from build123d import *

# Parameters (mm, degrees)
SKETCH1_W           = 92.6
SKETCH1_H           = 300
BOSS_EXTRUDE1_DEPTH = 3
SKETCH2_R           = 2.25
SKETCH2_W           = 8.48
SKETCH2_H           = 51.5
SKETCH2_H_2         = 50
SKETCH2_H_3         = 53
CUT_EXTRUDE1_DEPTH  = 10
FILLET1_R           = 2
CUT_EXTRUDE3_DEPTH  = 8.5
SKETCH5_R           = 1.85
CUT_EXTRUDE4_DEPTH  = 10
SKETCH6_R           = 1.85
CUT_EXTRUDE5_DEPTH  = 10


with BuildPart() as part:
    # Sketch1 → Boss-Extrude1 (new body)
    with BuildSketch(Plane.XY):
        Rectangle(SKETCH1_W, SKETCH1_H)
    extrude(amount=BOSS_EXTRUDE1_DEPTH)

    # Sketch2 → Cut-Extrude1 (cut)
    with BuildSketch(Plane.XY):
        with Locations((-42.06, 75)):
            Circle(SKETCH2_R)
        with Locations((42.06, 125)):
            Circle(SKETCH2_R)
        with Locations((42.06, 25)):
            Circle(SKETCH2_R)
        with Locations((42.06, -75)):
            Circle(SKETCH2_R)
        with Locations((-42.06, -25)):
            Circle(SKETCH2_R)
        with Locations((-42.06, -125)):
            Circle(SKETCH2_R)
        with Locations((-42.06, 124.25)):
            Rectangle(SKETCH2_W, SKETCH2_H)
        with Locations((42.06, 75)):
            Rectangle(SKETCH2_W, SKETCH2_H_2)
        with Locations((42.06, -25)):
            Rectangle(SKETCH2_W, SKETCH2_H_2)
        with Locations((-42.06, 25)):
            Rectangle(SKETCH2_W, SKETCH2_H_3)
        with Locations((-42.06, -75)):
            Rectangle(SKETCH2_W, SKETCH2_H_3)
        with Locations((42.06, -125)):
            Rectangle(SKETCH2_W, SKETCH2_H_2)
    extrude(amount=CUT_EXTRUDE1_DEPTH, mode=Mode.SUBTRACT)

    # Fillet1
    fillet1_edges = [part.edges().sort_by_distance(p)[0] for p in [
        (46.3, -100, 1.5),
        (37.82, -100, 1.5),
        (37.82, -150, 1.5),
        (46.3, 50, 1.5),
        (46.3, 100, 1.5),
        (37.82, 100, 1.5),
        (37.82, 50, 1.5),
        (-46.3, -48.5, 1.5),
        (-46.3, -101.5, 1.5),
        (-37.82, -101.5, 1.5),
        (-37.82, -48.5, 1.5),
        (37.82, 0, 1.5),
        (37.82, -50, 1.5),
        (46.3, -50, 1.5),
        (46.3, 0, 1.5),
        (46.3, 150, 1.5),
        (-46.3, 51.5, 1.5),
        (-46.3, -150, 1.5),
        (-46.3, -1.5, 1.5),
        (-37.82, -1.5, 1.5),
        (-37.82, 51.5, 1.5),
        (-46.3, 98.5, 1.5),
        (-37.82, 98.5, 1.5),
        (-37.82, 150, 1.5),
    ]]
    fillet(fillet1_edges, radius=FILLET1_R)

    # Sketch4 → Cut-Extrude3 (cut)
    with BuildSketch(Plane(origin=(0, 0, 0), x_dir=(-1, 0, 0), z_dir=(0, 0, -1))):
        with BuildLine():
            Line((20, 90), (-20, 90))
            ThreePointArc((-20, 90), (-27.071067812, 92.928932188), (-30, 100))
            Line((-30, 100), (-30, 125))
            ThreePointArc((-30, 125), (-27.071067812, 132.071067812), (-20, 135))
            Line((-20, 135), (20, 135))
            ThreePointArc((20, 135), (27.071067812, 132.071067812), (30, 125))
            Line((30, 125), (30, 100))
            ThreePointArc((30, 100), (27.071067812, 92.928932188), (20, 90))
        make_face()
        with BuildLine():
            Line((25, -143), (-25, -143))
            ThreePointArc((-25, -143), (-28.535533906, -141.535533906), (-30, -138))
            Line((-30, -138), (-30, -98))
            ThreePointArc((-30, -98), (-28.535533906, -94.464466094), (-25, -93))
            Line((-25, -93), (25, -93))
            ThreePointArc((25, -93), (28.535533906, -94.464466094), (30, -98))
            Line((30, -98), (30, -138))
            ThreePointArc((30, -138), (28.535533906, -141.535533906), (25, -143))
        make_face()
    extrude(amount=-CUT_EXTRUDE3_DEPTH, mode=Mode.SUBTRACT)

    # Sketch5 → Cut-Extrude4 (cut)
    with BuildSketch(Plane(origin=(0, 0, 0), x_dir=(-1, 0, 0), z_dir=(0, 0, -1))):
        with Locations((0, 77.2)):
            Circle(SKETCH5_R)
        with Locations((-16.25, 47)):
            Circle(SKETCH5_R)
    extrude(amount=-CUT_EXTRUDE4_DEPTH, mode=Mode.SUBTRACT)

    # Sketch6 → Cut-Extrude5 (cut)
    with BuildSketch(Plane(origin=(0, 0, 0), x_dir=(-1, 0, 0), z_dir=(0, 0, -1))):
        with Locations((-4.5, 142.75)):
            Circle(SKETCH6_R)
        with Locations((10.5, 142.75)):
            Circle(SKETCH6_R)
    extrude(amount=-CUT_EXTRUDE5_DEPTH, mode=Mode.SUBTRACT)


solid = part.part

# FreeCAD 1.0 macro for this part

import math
import FreeCAD as App
import Part
import Sketcher
from FreeCAD import Vector
Q = App.Units.Quantity


def edges_at(feature, points):
    """Names of the edges that pass closest to the given points."""
    edges = feature.Shape.Edges
    near = lambda p: min(range(len(edges)), key=lambda i: edges[i].distToShape(Part.Vertex(*p))[0])
    return sorted({f"Edge{near(p) + 1}" for p in points})

doc = App.newDocument("Part")
body = doc.addObject("PartDesign::Body", "Body")

# Sketch on XY plane
sketch1 = doc.addObject("Sketcher::SketchObject", "Sketch")
body.addObject(sketch1)
sketch1.AttachmentSupport = (doc.XY_Plane, [""])
sketch1.MapMode = "FlatFace"
sketch1.addGeometry(Part.LineSegment(Vector(-46, 150, 0), Vector(-46, -150, 0)), False)
sketch1.addGeometry(Part.LineSegment(Vector(-46, -150, 0), Vector(46, -150, 0)), False)
sketch1.addGeometry(Part.LineSegment(Vector(46, -150, 0), Vector(46, 150, 0)), False)
sketch1.addGeometry(Part.LineSegment(Vector(46, 150, 0), Vector(-46, 150, 0)), False)
sketch1.addConstraint(Sketcher.Constraint("Coincident", 0, 2, 1, 1))
sketch1.addConstraint(Sketcher.Constraint("Coincident", 1, 2, 2, 1))
sketch1.addConstraint(Sketcher.Constraint("Coincident", 2, 2, 3, 1))
sketch1.addConstraint(Sketcher.Constraint("Coincident", 3, 2, 0, 1))
sketch1.addConstraint(Sketcher.Constraint("Vertical", 0))
sketch1.addConstraint(Sketcher.Constraint("Horizontal", 1))
sketch1.addConstraint(Sketcher.Constraint("Vertical", 2))
sketch1.addConstraint(Sketcher.Constraint("Horizontal", 3))
sketch1.addConstraint(Sketcher.Constraint("Symmetric", 0, 2, 2, 2, -1, 1))
sketch1.addConstraint(Sketcher.Constraint("DistanceY", 0, 2, 0, 1, Q("300 mm")))
sketch1.addConstraint(Sketcher.Constraint("DistanceX", 1, 1, 1, 2, Q("92.6 mm")))
pad1 = doc.addObject("PartDesign::Pad", "Pad")
body.addObject(pad1)
pad1.Profile = sketch1
pad1.Length = 3

# Sketch on XY plane
sketch2 = doc.addObject("Sketcher::SketchObject", "Sketch001")
body.addObject(sketch2)
sketch2.AttachmentSupport = (doc.XY_Plane, [""])
sketch2.MapMode = "FlatFace"
sketch2.addGeometry(Part.Circle(Vector(-42.1, 75, 0), Vector(0, 0, 1), 2.2), False)
sketch2.addGeometry(Part.Circle(Vector(42.1, 125, 0), Vector(0, 0, 1), 2.2), False)
sketch2.addGeometry(Part.Circle(Vector(42.1, 25, 0), Vector(0, 0, 1), 2.2), False)
sketch2.addGeometry(Part.Circle(Vector(42.1, -75, 0), Vector(0, 0, 1), 2.2), False)
sketch2.addGeometry(Part.Circle(Vector(-42.1, -25, 0), Vector(0, 0, 1), 2.2), False)
sketch2.addGeometry(Part.Circle(Vector(-42.1, -125, 0), Vector(0, 0, 1), 2.2), False)
sketch2.addGeometry(Part.LineSegment(Vector(-46.3, 150, 0), Vector(-46.3, 98.5, 0)), False)
sketch2.addGeometry(Part.LineSegment(Vector(-46.3, 98.5, 0), Vector(-37.8, 98.5, 0)), False)
sketch2.addGeometry(Part.LineSegment(Vector(-37.8, 98.5, 0), Vector(-37.8, 150, 0)), False)
sketch2.addGeometry(Part.LineSegment(Vector(-37.8, 150, 0), Vector(-46.3, 150, 0)), False)
sketch2.addGeometry(Part.LineSegment(Vector(37.8, 100, 0), Vector(37.8, 50, 0)), False)
sketch2.addGeometry(Part.LineSegment(Vector(37.8, 50, 0), Vector(46.3, 50, 0)), False)
sketch2.addGeometry(Part.LineSegment(Vector(46.3, 50, 0), Vector(46.3, 100, 0)), False)
sketch2.addGeometry(Part.LineSegment(Vector(46.3, 100, 0), Vector(37.8, 100, 0)), False)
sketch2.addGeometry(Part.LineSegment(Vector(37.8, 0, 0), Vector(37.8, -50, 0)), False)
sketch2.addGeometry(Part.LineSegment(Vector(37.8, -50, 0), Vector(46.3, -50, 0)), False)
sketch2.addGeometry(Part.LineSegment(Vector(46.3, -50, 0), Vector(46.3, 0, 0)), False)
sketch2.addGeometry(Part.LineSegment(Vector(46.3, 0, 0), Vector(37.8, 0, 0)), False)
sketch2.addGeometry(Part.LineSegment(Vector(-46.3, 51.5, 0), Vector(-46.3, -1.5, 0)), False)
sketch2.addGeometry(Part.LineSegment(Vector(-46.3, -1.5, 0), Vector(-37.8, -1.5, 0)), False)
sketch2.addGeometry(Part.LineSegment(Vector(-37.8, -1.5, 0), Vector(-37.8, 51.5, 0)), False)
sketch2.addGeometry(Part.LineSegment(Vector(-37.8, 51.5, 0), Vector(-46.3, 51.5, 0)), False)
sketch2.addGeometry(Part.LineSegment(Vector(-46.3, -48.5, 0), Vector(-46.3, -101.5, 0)), False)
sketch2.addGeometry(Part.LineSegment(Vector(-46.3, -101.5, 0), Vector(-37.8, -101.5, 0)), False)
sketch2.addGeometry(Part.LineSegment(Vector(-37.8, -101.5, 0), Vector(-37.8, -48.5, 0)), False)
sketch2.addGeometry(Part.LineSegment(Vector(-37.8, -48.5, 0), Vector(-46.3, -48.5, 0)), False)
sketch2.addGeometry(Part.LineSegment(Vector(37.8, -100, 0), Vector(37.8, -150, 0)), False)
sketch2.addGeometry(Part.LineSegment(Vector(37.8, -150, 0), Vector(46.3, -150, 0)), False)
sketch2.addGeometry(Part.LineSegment(Vector(46.3, -150, 0), Vector(46.3, -100, 0)), False)
sketch2.addGeometry(Part.LineSegment(Vector(46.3, -100, 0), Vector(37.8, -100, 0)), False)
sketch2.addConstraint(Sketcher.Constraint("Coincident", 6, 2, 7, 1))
sketch2.addConstraint(Sketcher.Constraint("Coincident", 7, 2, 8, 1))
sketch2.addConstraint(Sketcher.Constraint("Coincident", 8, 2, 9, 1))
sketch2.addConstraint(Sketcher.Constraint("Coincident", 9, 2, 6, 1))
sketch2.addConstraint(Sketcher.Constraint("Coincident", 10, 2, 11, 1))
sketch2.addConstraint(Sketcher.Constraint("Coincident", 11, 2, 12, 1))
sketch2.addConstraint(Sketcher.Constraint("Coincident", 12, 2, 13, 1))
sketch2.addConstraint(Sketcher.Constraint("Coincident", 13, 2, 10, 1))
sketch2.addConstraint(Sketcher.Constraint("Coincident", 14, 2, 15, 1))
sketch2.addConstraint(Sketcher.Constraint("Coincident", 15, 2, 16, 1))
sketch2.addConstraint(Sketcher.Constraint("Coincident", 16, 2, 17, 1))
sketch2.addConstraint(Sketcher.Constraint("Coincident", 17, 2, 14, 1))
sketch2.addConstraint(Sketcher.Constraint("Coincident", 18, 2, 19, 1))
sketch2.addConstraint(Sketcher.Constraint("Coincident", 19, 2, 20, 1))
sketch2.addConstraint(Sketcher.Constraint("Coincident", 20, 2, 21, 1))
sketch2.addConstraint(Sketcher.Constraint("Coincident", 21, 2, 18, 1))
sketch2.addConstraint(Sketcher.Constraint("Coincident", 22, 2, 23, 1))
sketch2.addConstraint(Sketcher.Constraint("Coincident", 23, 2, 24, 1))
sketch2.addConstraint(Sketcher.Constraint("Coincident", 24, 2, 25, 1))
sketch2.addConstraint(Sketcher.Constraint("Coincident", 25, 2, 22, 1))
sketch2.addConstraint(Sketcher.Constraint("Coincident", 26, 2, 27, 1))
sketch2.addConstraint(Sketcher.Constraint("Coincident", 27, 2, 28, 1))
sketch2.addConstraint(Sketcher.Constraint("Coincident", 28, 2, 29, 1))
sketch2.addConstraint(Sketcher.Constraint("Coincident", 29, 2, 26, 1))
sketch2.addConstraint(Sketcher.Constraint("Vertical", 6))
sketch2.addConstraint(Sketcher.Constraint("Horizontal", 7))
sketch2.addConstraint(Sketcher.Constraint("Vertical", 8))
sketch2.addConstraint(Sketcher.Constraint("Horizontal", 9))
sketch2.addConstraint(Sketcher.Constraint("Vertical", 10))
sketch2.addConstraint(Sketcher.Constraint("Horizontal", 11))
sketch2.addConstraint(Sketcher.Constraint("Vertical", 12))
sketch2.addConstraint(Sketcher.Constraint("Horizontal", 13))
sketch2.addConstraint(Sketcher.Constraint("Vertical", 14))
sketch2.addConstraint(Sketcher.Constraint("Horizontal", 15))
sketch2.addConstraint(Sketcher.Constraint("Vertical", 16))
sketch2.addConstraint(Sketcher.Constraint("Horizontal", 17))
sketch2.addConstraint(Sketcher.Constraint("Vertical", 18))
sketch2.addConstraint(Sketcher.Constraint("Horizontal", 19))
sketch2.addConstraint(Sketcher.Constraint("Vertical", 20))
sketch2.addConstraint(Sketcher.Constraint("Horizontal", 21))
sketch2.addConstraint(Sketcher.Constraint("Vertical", 22))
sketch2.addConstraint(Sketcher.Constraint("Horizontal", 23))
sketch2.addConstraint(Sketcher.Constraint("Vertical", 24))
sketch2.addConstraint(Sketcher.Constraint("Horizontal", 25))
sketch2.addConstraint(Sketcher.Constraint("Vertical", 26))
sketch2.addConstraint(Sketcher.Constraint("Horizontal", 27))
sketch2.addConstraint(Sketcher.Constraint("Vertical", 28))
sketch2.addConstraint(Sketcher.Constraint("Horizontal", 29))
sketch2.addConstraint(Sketcher.Constraint("Equal", 0, 1))
sketch2.addConstraint(Sketcher.Constraint("Equal", 1, 2))
sketch2.addConstraint(Sketcher.Constraint("Equal", 2, 3))
sketch2.addConstraint(Sketcher.Constraint("Equal", 3, 4))
sketch2.addConstraint(Sketcher.Constraint("Equal", 4, 5))
sketch2.addConstraint(Sketcher.Constraint("Symmetric", 0, 3, 3, 3, -1, 1))
sketch2.addConstraint(Sketcher.Constraint("Symmetric", 2, 3, 4, 3, -1, 1))
sketch2.addConstraint(Sketcher.Constraint("Symmetric", 1, 3, 5, 3, -1, 1))
sketch2.addConstraint(Sketcher.Constraint("Symmetric", 8, 2, 26, 2, -1, 1))
sketch2.addConstraint(Sketcher.Constraint("Symmetric", 10, 2, 14, 2, -1))
sketch2.addConstraint(Sketcher.Constraint("Symmetric", 12, 2, 28, 2, -1))
sketch2.addConstraint(Sketcher.Constraint("PointOnObject", 16, 2, -1))
sketch2.addConstraint(Sketcher.Constraint("Vertical", 1, 3, 2, 3))
sketch2.addConstraint(Sketcher.Constraint("Vertical", 2, 3, 3, 3))
sketch2.addConstraint(Sketcher.Constraint("Vertical", 12, 2, 15, 2))
sketch2.addConstraint(Sketcher.Constraint("Vertical", 9, 2, 18, 2))
sketch2.addConstraint(Sketcher.Constraint("Vertical", 8, 2, 19, 2))
sketch2.addConstraint(Sketcher.Constraint("Vertical", 21, 2, 22, 2))
sketch2.addConstraint(Sketcher.Constraint("Vertical", 20, 2, 23, 2))
sketch2.addConstraint(Sketcher.Constraint("Vertical", 17, 2, 26, 2))
sketch2.addConstraint(Sketcher.Constraint("Equal", 9, 11))
sketch2.addConstraint(Sketcher.Constraint("Equal", 12, 14))
sketch2.addConstraint(Sketcher.Constraint("Equal", 20, 22))
sketch2.addConstraint(Sketcher.Constraint("Equal", 16, 26))
sketch2.addConstraint(Sketcher.Constraint("Diameter", 0, Q("4.5 mm")))
sketch2.addConstraint(Sketcher.Constraint("DistanceY", 10, 2, 10, 1, Q("50 mm")))
sketch2.addConstraint(Sketcher.Constraint("DistanceY", 18, 2, 18, 1, Q("53 mm")))
sketch2.addConstraint(Sketcher.Constraint("DistanceY", 6, 2, 6, 1, Q("51.5 mm")))
sketch2.addConstraint(Sketcher.Constraint("DistanceY", -1, 1, 0, 3, Q("75 mm")))
sketch2.addConstraint(Sketcher.Constraint("DistanceY", -1, 1, 1, 3, Q("125 mm")))
sketch2.addConstraint(Sketcher.Constraint("DistanceY", -1, 1, 2, 3, Q("25 mm")))
sketch2.addConstraint(Sketcher.Constraint("DistanceY", 20, 2, 7, 2, Q("47 mm")))
sketch2.addConstraint(Sketcher.Constraint("DistanceY", 22, 2, 18, 2, Q("100 mm")))
sketch2.addConstraint(Sketcher.Constraint("DistanceX", 7, 1, 7, 2, Q("8.48 mm")))
sketch2.addConstraint(Sketcher.Constraint("DistanceX", 6, 2, -1, 1, Q("46.3 mm")))
sketch2.addConstraint(Sketcher.Constraint("DistanceX", 0, 3, -1, 1, Q("42.06 mm")))
pocket1 = doc.addObject("PartDesign::Pocket", "Pocket")
body.addObject(pocket1)
pocket1.Profile = sketch2
pocket1.Length = 10
pocket1.Reversed = True
doc.recompute()

fillet = doc.addObject("PartDesign::Fillet", "Fillet")
body.addObject(fillet)
fillet.Base = (pocket1, edges_at(pocket1, [
    (46.3, -100, 1.5),
    (37.82, -100, 1.5),
    (37.82, -150, 1.5),
    (46.3, 50, 1.5),
    (46.3, 100, 1.5),
    (37.82, 100, 1.5),
    (37.82, 50, 1.5),
    (-46.3, -48.5, 1.5),
    (-46.3, -101.5, 1.5),
    (-37.82, -101.5, 1.5),
    (-37.82, -48.5, 1.5),
    (37.82, 0, 1.5),
    (37.82, -50, 1.5),
    (46.3, -50, 1.5),
    (46.3, 0, 1.5),
    (46.3, 150, 1.5),
    (-46.3, 51.5, 1.5),
    (-46.3, -150, 1.5),
    (-46.3, -1.5, 1.5),
    (-37.82, -1.5, 1.5),
    (-37.82, 51.5, 1.5),
    (-46.3, 98.5, 1.5),
    (-37.82, 98.5, 1.5),
    (-37.82, 150, 1.5),
]))
fillet.Radius = 2

# Sketch on XY plane
sketch3 = doc.addObject("Sketcher::SketchObject", "Sketch002")
body.addObject(sketch3)
sketch3.AttachmentSupport = (doc.XY_Plane, [""])
sketch3.MapMode = "FlatFace"
sketch3.addGeometry(Part.LineSegment(Vector(20, 90, 0), Vector(-20, 90, 0)), False)
sketch3.addGeometry(Part.ArcOfCircle(Part.Circle(Vector(-20, 100, 0), Vector(0, 0, 1), 10), math.radians(180), math.radians(270)), False)
sketch3.addGeometry(Part.LineSegment(Vector(-30, 100, 0), Vector(-30, 125, 0)), False)
sketch3.addGeometry(Part.ArcOfCircle(Part.Circle(Vector(-20, 125, 0), Vector(0, 0, 1), 10), math.radians(90), math.radians(180)), False)
sketch3.addGeometry(Part.LineSegment(Vector(-20, 135, 0), Vector(20, 135, 0)), False)
sketch3.addGeometry(Part.ArcOfCircle(Part.Circle(Vector(20, 125, 0), Vector(0, 0, 1), 10), math.radians(0), math.radians(90)), False)
sketch3.addGeometry(Part.LineSegment(Vector(30, 125, 0), Vector(30, 100, 0)), False)
sketch3.addGeometry(Part.ArcOfCircle(Part.Circle(Vector(20, 100, 0), Vector(0, 0, 1), 10), math.radians(-90), math.radians(0)), False)
sketch3.addGeometry(Part.LineSegment(Vector(25, -143, 0), Vector(-25, -143, 0)), False)
sketch3.addGeometry(Part.ArcOfCircle(Part.Circle(Vector(-25, -138, 0), Vector(0, 0, 1), 5), math.radians(180), math.radians(270)), False)
sketch3.addGeometry(Part.LineSegment(Vector(-30, -138, 0), Vector(-30, -98, 0)), False)
sketch3.addGeometry(Part.ArcOfCircle(Part.Circle(Vector(-25, -98, 0), Vector(0, 0, 1), 5), math.radians(90), math.radians(180)), False)
sketch3.addGeometry(Part.LineSegment(Vector(-25, -93, 0), Vector(25, -93, 0)), False)
sketch3.addGeometry(Part.ArcOfCircle(Part.Circle(Vector(25, -98, 0), Vector(0, 0, 1), 5), math.radians(0), math.radians(90)), False)
sketch3.addGeometry(Part.LineSegment(Vector(30, -98, 0), Vector(30, -138, 0)), False)
sketch3.addGeometry(Part.ArcOfCircle(Part.Circle(Vector(25, -138, 0), Vector(0, 0, 1), 5), math.radians(-90), math.radians(0)), False)
sketch3.addConstraint(Sketcher.Constraint("Tangent", 0, 2, 1, 2))
sketch3.addConstraint(Sketcher.Constraint("Tangent", 1, 1, 2, 1))
sketch3.addConstraint(Sketcher.Constraint("Tangent", 2, 2, 3, 2))
sketch3.addConstraint(Sketcher.Constraint("Tangent", 3, 1, 4, 1))
sketch3.addConstraint(Sketcher.Constraint("Tangent", 4, 2, 5, 2))
sketch3.addConstraint(Sketcher.Constraint("Tangent", 5, 1, 6, 1))
sketch3.addConstraint(Sketcher.Constraint("Tangent", 6, 2, 7, 2))
sketch3.addConstraint(Sketcher.Constraint("Tangent", 7, 1, 0, 1))
sketch3.addConstraint(Sketcher.Constraint("Tangent", 8, 2, 9, 2))
sketch3.addConstraint(Sketcher.Constraint("Tangent", 9, 1, 10, 1))
sketch3.addConstraint(Sketcher.Constraint("Tangent", 10, 2, 11, 2))
sketch3.addConstraint(Sketcher.Constraint("Tangent", 11, 1, 12, 1))
sketch3.addConstraint(Sketcher.Constraint("Tangent", 12, 2, 13, 2))
sketch3.addConstraint(Sketcher.Constraint("Tangent", 13, 1, 14, 1))
sketch3.addConstraint(Sketcher.Constraint("Tangent", 14, 2, 15, 2))
sketch3.addConstraint(Sketcher.Constraint("Tangent", 15, 1, 8, 1))
sketch3.addConstraint(Sketcher.Constraint("Horizontal", 0))
sketch3.addConstraint(Sketcher.Constraint("Vertical", 2))
sketch3.addConstraint(Sketcher.Constraint("Horizontal", 4))
sketch3.addConstraint(Sketcher.Constraint("Vertical", 6))
sketch3.addConstraint(Sketcher.Constraint("Horizontal", 8))
sketch3.addConstraint(Sketcher.Constraint("Vertical", 10))
sketch3.addConstraint(Sketcher.Constraint("Horizontal", 12))
sketch3.addConstraint(Sketcher.Constraint("Vertical", 14))
sketch3.addConstraint(Sketcher.Constraint("Equal", 1, 3))
sketch3.addConstraint(Sketcher.Constraint("Equal", 3, 5))
sketch3.addConstraint(Sketcher.Constraint("Equal", 5, 7))
sketch3.addConstraint(Sketcher.Constraint("Equal", 9, 11))
sketch3.addConstraint(Sketcher.Constraint("Equal", 11, 13))
sketch3.addConstraint(Sketcher.Constraint("Equal", 13, 15))
sketch3.addConstraint(Sketcher.Constraint("Vertical", 2, 2, 9, 1))
sketch3.addConstraint(Sketcher.Constraint("Vertical", 6, 2, 13, 1))
sketch3.addConstraint(Sketcher.Constraint("Equal", 4, 10))
sketch3.addConstraint(Sketcher.Constraint("Radius", 1, Q("10 mm")))
sketch3.addConstraint(Sketcher.Constraint("Radius", 9, Q("5 mm")))
sketch3.addConstraint(Sketcher.Constraint("DistanceX", 0, 2, 0, 1, Q("40 mm")))
sketch3.addConstraint(Sketcher.Constraint("DistanceY", 2, 1, 2, 2, Q("25 mm")))
sketch3.addConstraint(Sketcher.Constraint("DistanceX", 1, 3, -1, 1, Q("20 mm")))
sketch3.addConstraint(Sketcher.Constraint("DistanceY", -1, 1, 1, 3, Q("100 mm")))
sketch3.addConstraint(Sketcher.Constraint("DistanceY", 9, 3, -1, 1, Q("138 mm")))
pocket2 = doc.addObject("PartDesign::Pocket", "Pocket001")
body.addObject(pocket2)
pocket2.Profile = sketch3
pocket2.Length = 8.5
pocket2.Reversed = True

# Sketch on XY plane
sketch4 = doc.addObject("Sketcher::SketchObject", "Sketch003")
body.addObject(sketch4)
sketch4.AttachmentSupport = (doc.XY_Plane, [""])
sketch4.MapMode = "FlatFace"
sketch4.addGeometry(Part.Circle(Vector(0, 77.2, 0), Vector(0, 0, 1), 1.9), False)
sketch4.addGeometry(Part.Circle(Vector(16.2, 47, 0), Vector(0, 0, 1), 1.9), False)
sketch4.addConstraint(Sketcher.Constraint("Equal", 0, 1))
sketch4.addConstraint(Sketcher.Constraint("PointOnObject", 0, 3, -2))
sketch4.addConstraint(Sketcher.Constraint("Diameter", 0, Q("3.7 mm")))
sketch4.addConstraint(Sketcher.Constraint("DistanceY", -1, 1, 1, 3, Q("47 mm")))
sketch4.addConstraint(Sketcher.Constraint("DistanceY", -1, 1, 0, 3, Q("77.2 mm")))
sketch4.addConstraint(Sketcher.Constraint("DistanceX", -1, 1, 1, 3, Q("16.25 mm")))
pocket3 = doc.addObject("PartDesign::Pocket", "Pocket002")
body.addObject(pocket3)
pocket3.Profile = sketch4
pocket3.Length = 10
pocket3.Reversed = True

# Sketch on XY plane
sketch5 = doc.addObject("Sketcher::SketchObject", "Sketch004")
body.addObject(sketch5)
sketch5.AttachmentSupport = (doc.XY_Plane, [""])
sketch5.MapMode = "FlatFace"
sketch5.addGeometry(Part.Circle(Vector(4.5, 142.8, 0), Vector(0, 0, 1), 1.9), False)
sketch5.addGeometry(Part.Circle(Vector(-10.5, 142.8, 0), Vector(0, 0, 1), 1.9), False)
sketch5.addConstraint(Sketcher.Constraint("Equal", 0, 1))
sketch5.addConstraint(Sketcher.Constraint("Horizontal", 0, 3, 1, 3))
sketch5.addConstraint(Sketcher.Constraint("Diameter", 0, Q("3.7 mm")))
sketch5.addConstraint(Sketcher.Constraint("DistanceX", 1, 3, 0, 3, Q("15 mm")))
sketch5.addConstraint(Sketcher.Constraint("DistanceX", -1, 1, 0, 3, Q("4.5 mm")))
sketch5.addConstraint(Sketcher.Constraint("DistanceY", -1, 1, 0, 3, Q("142.75 mm")))
pocket4 = doc.addObject("PartDesign::Pocket", "Pocket003")
body.addObject(pocket4)
pocket4.Profile = sketch5
pocket4.Length = 10
pocket4.Reversed = True

doc.recompute()
